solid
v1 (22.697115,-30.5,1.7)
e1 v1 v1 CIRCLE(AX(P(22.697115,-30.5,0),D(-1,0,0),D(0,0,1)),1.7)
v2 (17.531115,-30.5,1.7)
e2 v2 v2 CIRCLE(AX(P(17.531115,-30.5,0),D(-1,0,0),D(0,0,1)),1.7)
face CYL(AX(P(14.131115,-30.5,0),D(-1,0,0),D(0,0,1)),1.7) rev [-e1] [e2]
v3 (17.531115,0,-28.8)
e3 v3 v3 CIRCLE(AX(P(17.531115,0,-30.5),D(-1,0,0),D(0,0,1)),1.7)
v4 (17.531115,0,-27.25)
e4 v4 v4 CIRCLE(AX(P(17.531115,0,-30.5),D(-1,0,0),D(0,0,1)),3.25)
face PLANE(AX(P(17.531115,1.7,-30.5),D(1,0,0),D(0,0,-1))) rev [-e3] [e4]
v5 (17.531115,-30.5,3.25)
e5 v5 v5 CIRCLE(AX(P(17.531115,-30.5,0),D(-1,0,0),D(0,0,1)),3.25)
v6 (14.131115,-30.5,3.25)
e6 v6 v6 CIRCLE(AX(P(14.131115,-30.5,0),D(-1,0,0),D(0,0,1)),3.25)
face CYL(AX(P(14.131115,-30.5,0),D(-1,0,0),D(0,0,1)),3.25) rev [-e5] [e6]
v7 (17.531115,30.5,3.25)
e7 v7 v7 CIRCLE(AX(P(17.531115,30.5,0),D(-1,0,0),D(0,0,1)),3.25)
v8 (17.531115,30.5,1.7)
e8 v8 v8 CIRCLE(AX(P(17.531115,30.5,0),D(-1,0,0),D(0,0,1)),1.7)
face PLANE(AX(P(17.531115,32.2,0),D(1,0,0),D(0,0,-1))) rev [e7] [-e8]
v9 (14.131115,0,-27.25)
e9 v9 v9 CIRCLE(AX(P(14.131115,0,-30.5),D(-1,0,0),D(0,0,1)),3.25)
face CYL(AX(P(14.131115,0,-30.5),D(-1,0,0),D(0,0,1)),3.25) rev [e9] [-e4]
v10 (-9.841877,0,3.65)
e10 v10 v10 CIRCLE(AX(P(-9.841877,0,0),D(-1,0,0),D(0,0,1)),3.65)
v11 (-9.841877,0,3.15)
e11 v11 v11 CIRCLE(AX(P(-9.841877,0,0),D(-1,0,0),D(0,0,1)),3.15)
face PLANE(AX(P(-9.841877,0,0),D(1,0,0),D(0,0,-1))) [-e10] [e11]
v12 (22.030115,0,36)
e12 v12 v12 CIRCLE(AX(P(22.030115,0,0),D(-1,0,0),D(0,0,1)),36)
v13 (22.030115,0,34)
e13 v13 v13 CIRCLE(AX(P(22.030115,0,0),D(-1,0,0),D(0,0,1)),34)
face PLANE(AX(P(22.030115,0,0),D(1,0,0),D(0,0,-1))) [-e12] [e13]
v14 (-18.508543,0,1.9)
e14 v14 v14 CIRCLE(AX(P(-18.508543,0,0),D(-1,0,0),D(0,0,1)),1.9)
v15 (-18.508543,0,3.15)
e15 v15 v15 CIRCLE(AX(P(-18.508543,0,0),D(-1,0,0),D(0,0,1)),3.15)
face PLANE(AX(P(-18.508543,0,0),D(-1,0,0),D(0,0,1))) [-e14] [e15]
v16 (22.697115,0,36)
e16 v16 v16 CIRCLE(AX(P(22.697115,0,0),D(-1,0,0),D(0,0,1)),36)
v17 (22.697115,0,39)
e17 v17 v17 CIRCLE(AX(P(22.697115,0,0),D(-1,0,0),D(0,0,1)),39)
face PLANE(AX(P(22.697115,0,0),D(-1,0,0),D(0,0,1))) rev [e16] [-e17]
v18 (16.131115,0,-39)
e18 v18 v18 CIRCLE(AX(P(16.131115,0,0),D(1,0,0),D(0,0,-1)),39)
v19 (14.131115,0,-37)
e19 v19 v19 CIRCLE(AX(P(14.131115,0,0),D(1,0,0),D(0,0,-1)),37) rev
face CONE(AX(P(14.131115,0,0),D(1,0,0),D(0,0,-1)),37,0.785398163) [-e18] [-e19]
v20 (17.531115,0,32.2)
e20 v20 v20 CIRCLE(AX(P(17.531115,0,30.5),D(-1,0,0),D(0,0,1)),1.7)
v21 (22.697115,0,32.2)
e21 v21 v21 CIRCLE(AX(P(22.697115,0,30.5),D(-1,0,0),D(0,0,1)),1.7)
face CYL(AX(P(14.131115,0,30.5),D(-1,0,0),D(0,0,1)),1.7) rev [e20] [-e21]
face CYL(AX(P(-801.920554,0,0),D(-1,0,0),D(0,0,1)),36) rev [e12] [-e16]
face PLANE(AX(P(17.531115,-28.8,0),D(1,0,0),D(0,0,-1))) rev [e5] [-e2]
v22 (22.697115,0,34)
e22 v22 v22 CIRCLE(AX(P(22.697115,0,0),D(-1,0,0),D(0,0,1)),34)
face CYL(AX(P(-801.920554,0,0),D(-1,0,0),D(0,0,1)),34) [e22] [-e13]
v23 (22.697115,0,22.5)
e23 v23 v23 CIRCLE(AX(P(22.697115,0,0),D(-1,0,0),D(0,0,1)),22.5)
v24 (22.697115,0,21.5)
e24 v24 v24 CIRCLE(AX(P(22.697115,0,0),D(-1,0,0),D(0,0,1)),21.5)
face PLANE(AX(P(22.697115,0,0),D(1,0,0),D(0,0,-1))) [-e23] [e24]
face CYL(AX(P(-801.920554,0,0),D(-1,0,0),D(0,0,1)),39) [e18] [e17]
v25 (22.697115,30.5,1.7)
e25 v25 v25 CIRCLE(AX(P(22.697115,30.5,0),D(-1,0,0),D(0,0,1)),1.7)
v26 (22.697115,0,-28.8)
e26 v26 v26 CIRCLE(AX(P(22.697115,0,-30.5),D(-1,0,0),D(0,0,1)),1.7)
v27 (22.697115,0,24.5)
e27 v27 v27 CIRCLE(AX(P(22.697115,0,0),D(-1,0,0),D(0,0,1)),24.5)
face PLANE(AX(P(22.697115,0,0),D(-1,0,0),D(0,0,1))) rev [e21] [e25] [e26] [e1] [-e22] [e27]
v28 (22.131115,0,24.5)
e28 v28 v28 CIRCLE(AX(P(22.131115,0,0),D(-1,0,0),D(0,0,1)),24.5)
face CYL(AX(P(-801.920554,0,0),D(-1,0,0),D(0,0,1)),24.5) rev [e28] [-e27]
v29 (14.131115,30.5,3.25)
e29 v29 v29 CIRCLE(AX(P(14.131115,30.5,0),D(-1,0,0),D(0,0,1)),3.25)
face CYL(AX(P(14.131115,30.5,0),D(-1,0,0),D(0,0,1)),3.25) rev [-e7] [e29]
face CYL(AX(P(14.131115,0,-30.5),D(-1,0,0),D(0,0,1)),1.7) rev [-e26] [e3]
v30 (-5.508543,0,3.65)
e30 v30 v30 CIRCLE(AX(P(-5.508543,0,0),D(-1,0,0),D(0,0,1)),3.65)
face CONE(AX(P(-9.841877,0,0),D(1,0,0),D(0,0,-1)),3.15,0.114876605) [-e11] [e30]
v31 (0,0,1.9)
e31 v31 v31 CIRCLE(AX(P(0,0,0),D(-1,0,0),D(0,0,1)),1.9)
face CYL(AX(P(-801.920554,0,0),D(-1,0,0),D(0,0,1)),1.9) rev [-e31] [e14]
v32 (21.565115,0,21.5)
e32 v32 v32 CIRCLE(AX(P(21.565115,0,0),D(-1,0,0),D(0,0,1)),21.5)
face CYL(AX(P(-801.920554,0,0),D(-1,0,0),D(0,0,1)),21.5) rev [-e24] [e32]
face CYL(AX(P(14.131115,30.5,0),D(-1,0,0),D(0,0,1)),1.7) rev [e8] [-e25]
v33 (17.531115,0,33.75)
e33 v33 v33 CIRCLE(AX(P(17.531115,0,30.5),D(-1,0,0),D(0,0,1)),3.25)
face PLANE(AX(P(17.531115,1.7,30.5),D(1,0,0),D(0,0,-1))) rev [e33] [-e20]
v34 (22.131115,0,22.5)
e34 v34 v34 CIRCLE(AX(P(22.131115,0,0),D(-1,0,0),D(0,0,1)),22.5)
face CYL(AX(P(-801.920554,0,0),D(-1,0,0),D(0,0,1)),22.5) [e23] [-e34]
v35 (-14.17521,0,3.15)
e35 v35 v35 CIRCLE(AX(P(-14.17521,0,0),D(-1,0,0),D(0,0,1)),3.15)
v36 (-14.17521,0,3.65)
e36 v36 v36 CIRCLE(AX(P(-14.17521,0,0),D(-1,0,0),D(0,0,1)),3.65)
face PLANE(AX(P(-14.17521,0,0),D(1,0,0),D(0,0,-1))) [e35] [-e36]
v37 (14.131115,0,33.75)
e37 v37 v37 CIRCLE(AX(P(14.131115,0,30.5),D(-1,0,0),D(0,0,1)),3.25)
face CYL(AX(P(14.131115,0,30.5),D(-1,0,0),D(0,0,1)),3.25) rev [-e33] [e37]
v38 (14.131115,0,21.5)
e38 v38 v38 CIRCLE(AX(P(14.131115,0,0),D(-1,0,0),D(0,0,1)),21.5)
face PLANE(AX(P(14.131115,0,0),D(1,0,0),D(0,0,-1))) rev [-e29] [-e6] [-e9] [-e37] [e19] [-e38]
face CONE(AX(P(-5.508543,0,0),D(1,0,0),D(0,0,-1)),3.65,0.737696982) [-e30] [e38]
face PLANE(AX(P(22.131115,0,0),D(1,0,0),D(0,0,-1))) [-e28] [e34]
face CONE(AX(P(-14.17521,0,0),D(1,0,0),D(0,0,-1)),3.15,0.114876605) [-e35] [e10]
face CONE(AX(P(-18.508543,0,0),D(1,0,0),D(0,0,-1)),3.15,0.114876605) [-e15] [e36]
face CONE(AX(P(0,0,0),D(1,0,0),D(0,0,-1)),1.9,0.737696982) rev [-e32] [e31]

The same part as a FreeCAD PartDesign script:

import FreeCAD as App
import Part
import Sketcher


def edges_at(feature, points):
    """Names of the edges that pass closest to the given points."""
    edges = feature.Shape.Edges
    near = lambda p: min(range(len(edges)), key=lambda i: edges[i].distToShape(Part.Vertex(*p))[0])
    return sorted({f"Edge{near(p) + 1}" for p in points})


def add_polygon(sketch, points):
    """Adds a closed chain of lines whose ends are joined by coincident constraints."""
    first, n = sketch.GeometryCount, len(points)
    for a, b in zip(points, points[1:] + points[:1]):
        sketch.addGeometry(Part.LineSegment(App.Vector(*a, 0), App.Vector(*b, 0)), False)
    for i in range(n):
        sketch.addConstraint(Sketcher.Constraint("Coincident", first + i, 2, first + (i + 1) % n, 1))

doc = App.newDocument("Part")
body = doc.addObject("PartDesign::Body", "Body")

# Sketch on XY plane
sketch1 = doc.addObject("Sketcher::SketchObject", "Sketch")
body.addObject(sketch1)
sketch1.AttachmentSupport = (doc.XY_Plane, [""])
sketch1.MapMode = "FlatFace"
add_polygon(sketch1, [(-14.17521, 3.15), (-14.17521, 3.65), (-18.508543, 3.15), (-18.508543, 1.9), (0, 1.9), (21.565115, 21.5), (22.697115, 21.5), (22.697115, 22.5), (22.131115, 22.5), (22.131115, 24.5), (22.697115, 24.5), (22.697115, 34), (22.030115, 34), (22.030115, 36), (22.697115, 36), (22.697115, 39), (14.131115, 39), (14.131115, 21.5), (-5.508543, 3.65), (-9.841877, 3.15), (-9.841877, 3.65)])  # lines 0-20
sketch1.addConstraint([
    Sketcher.Constraint("Vertical", 0),
    Sketcher.Constraint("Vertical", 2),
    Sketcher.Constraint("Horizontal", 3),
    Sketcher.Constraint("Horizontal", 5),
    Sketcher.Constraint("Vertical", 6),
    Sketcher.Constraint("Horizontal", 7),
    Sketcher.Constraint("Vertical", 8),
    Sketcher.Constraint("Horizontal", 9),
    Sketcher.Constraint("Vertical", 10),
    Sketcher.Constraint("Horizontal", 11),
    Sketcher.Constraint("Vertical", 12),
    Sketcher.Constraint("Horizontal", 13),
    Sketcher.Constraint("Vertical", 14),
    Sketcher.Constraint("Horizontal", 15),
    Sketcher.Constraint("Vertical", 16),
    Sketcher.Constraint("Vertical", 19),
    Sketcher.Constraint("PointOnObject", 3, 2, -2),
    Sketcher.Constraint("Parallel", 4, 17),
    Sketcher.Constraint("Parallel", 1, 18),
    Sketcher.Constraint("Parallel", 18, 20),
    Sketcher.Constraint("Horizontal", 5, 2, 16, 2),
    Sketcher.Constraint("Horizontal", 0, 2, 17, 2),
    Sketcher.Constraint("Horizontal", 1, 2, 18, 2),
    Sketcher.Constraint("Horizontal", 17, 2, 19, 2),
    Sketcher.Constraint("Horizontal", 18, 2, 20, 2),
    Sketcher.Constraint("Vertical", 6, 2, 9, 2),
    Sketcher.Constraint("Vertical", 10, 2, 13, 2),
    Sketcher.Constraint("Equal", 8, 12),
    Sketcher.Constraint("DistanceY", 6, 1, 6, 2, 1.0),
    Sketcher.Constraint("DistanceY", 8, 1, 8, 2, 2.0),
    Sketcher.Constraint("DistanceY", 14, 1, 14, 2, 3.0),
    Sketcher.Constraint("DistanceY", 0, 1, 0, 2, 0.5),
    Sketcher.Constraint("DistanceY", 10, 1, 10, 2, 9.5),
    Sketcher.Constraint("DistanceY", -1, 1, 10, 2, 34.0),
    Sketcher.Constraint("DistanceX", 16, 2, 7, 2, 8.0),
    Sketcher.Constraint("DistanceX", 1, 2, 17, 2, 13.0),
    Sketcher.Constraint("DistanceY", 2, 2, 2, 1, 1.25),
    Sketcher.Constraint("DistanceY", -1, 1, 2, 2, 1.9),
    Sketcher.Constraint("DistanceX", 5, 1, 5, 2, 1.132),
    Sketcher.Constraint("DistanceX", 7, 2, 7, 1, 0.566),
    Sketcher.Constraint("DistanceX", 11, 2, 11, 1, 0.667),
    Sketcher.Constraint("Distance", 4, 29.14128),
])
revolution = doc.addObject("PartDesign::Revolution", "Revolution")
body.addObject(revolution)
revolution.Profile = sketch1
revolution.ReferenceAxis = (sketch1, ["H_Axis"])
revolution.Angle = 360

# Sketch on YZ plane
sketch2 = doc.addObject("Sketcher::SketchObject", "Sketch001")
body.addObject(sketch2)
sketch2.AttachmentSupport = (doc.YZ_Plane, [""])
sketch2.MapMode = "FlatFace"
sketch2.AttachmentOffset = App.Placement(App.Vector(0, 0, 14.131115), App.Rotation())
sketch2.addGeometry([
    Part.Circle(App.Vector(-30.5, 0, 0), App.Vector(0, 0, 1), 1.7),
    Part.Circle(App.Vector(30.5, 0, 0), App.Vector(0, 0, 1), 1.7),
    Part.Circle(App.Vector(0, 30.5, 0), App.Vector(0, 0, 1), 1.7),
    Part.Circle(App.Vector(0, -30.5, 0), App.Vector(0, 0, 1), 1.7),
], False)
sketch2.addConstraint([
    Sketcher.Constraint("Equal", 0, 1),
    Sketcher.Constraint("Equal", 1, 2),
    Sketcher.Constraint("Equal", 2, 3),
    Sketcher.Constraint("Symmetric", 0, 3, 1, 3, -1, 1),
    Sketcher.Constraint("Symmetric", 2, 3, 3, 3, -1, 1),
    Sketcher.Constraint("PointOnObject", 0, 3, -1),
    Sketcher.Constraint("PointOnObject", 2, 3, -2),
    Sketcher.Constraint("Diameter", 0, 3.4),
    Sketcher.Constraint("DistanceX", 0, 3, 1, 3, 61.0),
    Sketcher.Constraint("DistanceY", 3, 3, 2, 3, 61.0),
])
doc.recompute()
hole = doc.addObject("PartDesign::Hole", "Hole")
body.addObject(hole)
hole.Profile = sketch2
hole.ThreadType = "None"
hole.Diameter = 3.4
hole.DepthType = "Dimension"
hole.Depth = 8.566
hole.DrillPoint = "Angled"
hole.DrillPointAngle = 118
hole.HoleCutType = "Counterbore"
hole.HoleCutDiameter = 6.5
hole.HoleCutDepth = 3.4
hole.Reversed = True
doc.recompute()

chamfer = doc.addObject("PartDesign::Chamfer", "Chamfer")
body.addObject(chamfer)
chamfer.Base = (hole, edges_at(hole, [(14.131, -39, 0)]))
chamfer.Size = 2

doc.recompute()
